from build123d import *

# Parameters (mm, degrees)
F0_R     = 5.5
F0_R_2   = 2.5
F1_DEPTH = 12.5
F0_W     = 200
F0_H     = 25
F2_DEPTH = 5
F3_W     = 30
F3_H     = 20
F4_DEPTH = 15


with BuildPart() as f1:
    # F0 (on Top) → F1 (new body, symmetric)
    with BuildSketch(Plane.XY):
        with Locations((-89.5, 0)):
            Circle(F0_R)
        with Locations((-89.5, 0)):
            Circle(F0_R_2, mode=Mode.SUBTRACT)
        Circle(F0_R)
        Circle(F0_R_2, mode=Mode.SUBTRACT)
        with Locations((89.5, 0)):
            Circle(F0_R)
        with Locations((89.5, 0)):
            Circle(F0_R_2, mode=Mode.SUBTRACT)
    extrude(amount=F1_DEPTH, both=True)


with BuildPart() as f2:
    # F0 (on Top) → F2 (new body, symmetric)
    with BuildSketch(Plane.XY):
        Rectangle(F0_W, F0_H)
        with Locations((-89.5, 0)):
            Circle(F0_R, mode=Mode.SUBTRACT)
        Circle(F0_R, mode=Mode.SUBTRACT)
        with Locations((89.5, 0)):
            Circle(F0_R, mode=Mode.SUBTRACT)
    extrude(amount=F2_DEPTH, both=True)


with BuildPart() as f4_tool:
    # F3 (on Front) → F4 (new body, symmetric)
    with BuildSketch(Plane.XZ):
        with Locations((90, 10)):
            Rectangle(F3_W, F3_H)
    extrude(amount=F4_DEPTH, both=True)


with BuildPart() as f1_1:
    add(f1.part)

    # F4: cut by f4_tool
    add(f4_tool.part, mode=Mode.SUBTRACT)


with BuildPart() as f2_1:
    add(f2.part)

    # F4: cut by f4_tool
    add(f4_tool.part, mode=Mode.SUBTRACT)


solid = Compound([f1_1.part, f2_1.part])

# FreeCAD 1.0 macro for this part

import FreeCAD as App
import Part
import Sketcher
from FreeCAD import Vector

doc = App.newDocument("Part")
body = doc.addObject("PartDesign::Body", "Body")
body.AllowCompound = True

# Sketch on XY plane
sketch1 = body.newObject("Sketcher::SketchObject", "Sketch")
sketch1.AttachmentSupport = (doc.getObject("XY_Plane"), [""])
sketch1.MapMode = "FlatFace"
sketch1.addGeometry([
    Part.Circle(Vector(-89.5, 0, 0), Vector(0, 0, 1), 5.5),  # 0
    Part.Circle(Vector(-89.5, 0, 0), Vector(0, 0, 1), 2.5),  # 1
    Part.Circle(Vector(0, 0, 0), Vector(0, 0, 1), 5.5),  # 2
    Part.Circle(Vector(0, 0, 0), Vector(0, 0, 1), 2.5),  # 3
    Part.Circle(Vector(89.5, 0, 0), Vector(0, 0, 1), 5.5),  # 4
    Part.Circle(Vector(89.5, 0, 0), Vector(0, 0, 1), 2.5),  # 5
], False)
sketch1.addConstraint([
    Sketcher.Constraint("Coincident", 2, 3, -1, 1),
    Sketcher.Constraint("Coincident", 3, 3, -1, 1),
    Sketcher.Constraint("Coincident", 1, 3, 0, 3),
    Sketcher.Constraint("Coincident", 5, 3, 4, 3),
    Sketcher.Constraint("Equal", 0, 2),
    Sketcher.Constraint("Equal", 1, 3),
    Sketcher.Constraint("Equal", 2, 4),
    Sketcher.Constraint("Equal", 3, 5),
    Sketcher.Constraint("Symmetric", 0, 3, 4, 3, -1, 1),
    Sketcher.Constraint("PointOnObject", 0, 3, -1),
    Sketcher.Constraint("Diameter", 0, 11.0),
    Sketcher.Constraint("Diameter", 1, 5.0),
    Sketcher.Constraint("DistanceX", 0, 3, 4, 3, 179.0),
])
pad1 = body.newObject("PartDesign::Pad", "Pad")
pad1.Profile = sketch1
pad1.Length = 25
pad1.Midplane = True
body2 = doc.addObject("PartDesign::Body", "Body001")

# Sketch on XY plane
sketch2 = body2.newObject("Sketcher::SketchObject", "Sketch001")
sketch2.AttachmentSupport = (doc.getObject("XY_Plane001"), [""])
sketch2.MapMode = "FlatFace"
sketch2.addGeometry([
    Part.LineSegment(Vector(-100, 12, 0), Vector(-100, -12, 0)),  # 0
    Part.LineSegment(Vector(-100, -12, 0), Vector(100, -12, 0)),  # 1
    Part.LineSegment(Vector(100, -12, 0), Vector(100, 12, 0)),  # 2
    Part.LineSegment(Vector(100, 12, 0), Vector(-100, 12, 0)),  # 3
    Part.Circle(Vector(-90, 0, 0), Vector(0, 0, 1), 6),  # 4
    Part.Circle(Vector(0, 0, 0), Vector(0, 0, 1), 6),  # 5
    Part.Circle(Vector(90, 0, 0), Vector(0, 0, 1), 6),  # 6
], False)
sketch2.addConstraint([
    Sketcher.Constraint("Coincident", 0, 2, 1, 1),
    Sketcher.Constraint("Coincident", 1, 2, 2, 1),
    Sketcher.Constraint("Coincident", 2, 2, 3, 1),
    Sketcher.Constraint("Coincident", 3, 2, 0, 1),
    Sketcher.Constraint("Vertical", 0),
    Sketcher.Constraint("Horizontal", 1),
    Sketcher.Constraint("Vertical", 2),
    Sketcher.Constraint("Horizontal", 3),
    Sketcher.Constraint("Coincident", 5, 3, -1, 1),
    Sketcher.Constraint("Equal", 4, 5),
    Sketcher.Constraint("Equal", 5, 6),
    Sketcher.Constraint("Symmetric", 4, 3, 6, 3, -1, 1),
    Sketcher.Constraint("Symmetric", 0, 2, 2, 2, -1, 1),
    Sketcher.Constraint("PointOnObject", 4, 3, -1),
    Sketcher.Constraint("Diameter", 4, 11.0),
    Sketcher.Constraint("DistanceX", 1, 1, 1, 2, 200.0),
    Sketcher.Constraint("DistanceY", 0, 2, 0, 1, 25.0),
    Sketcher.Constraint("DistanceX", 4, 3, 6, 3, 179.0),
])
pad2 = body2.newObject("PartDesign::Pad", "Pad001")
pad2.Profile = sketch2
pad2.Length = 10
pad2.Midplane = True
body3 = doc.addObject("PartDesign::Body", "Body002")

# Sketch on XZ plane
sketch3 = body3.newObject("Sketcher::SketchObject", "Sketch002")
sketch3.AttachmentSupport = (doc.getObject("XZ_Plane002"), [""])
sketch3.MapMode = "FlatFace"
sketch3.addGeometry([
    Part.LineSegment(Vector(75, 20, 0), Vector(75, 0, 0)),
    Part.LineSegment(Vector(75, 0, 0), Vector(105, 0, 0)),
    Part.LineSegment(Vector(105, 0, 0), Vector(105, 20, 0)),
    Part.LineSegment(Vector(105, 20, 0), Vector(75, 20, 0)),
], False)
sketch3.addConstraint([
    Sketcher.Constraint("Coincident", 0, 2, 1, 1),
    Sketcher.Constraint("Coincident", 1, 2, 2, 1),
    Sketcher.Constraint("Coincident", 2, 2, 3, 1),
    Sketcher.Constraint("Coincident", 3, 2, 0, 1),
    Sketcher.Constraint("Vertical", 0),
    Sketcher.Constraint("Horizontal", 1),
    Sketcher.Constraint("Vertical", 2),
    Sketcher.Constraint("Horizontal", 3),
    Sketcher.Constraint("PointOnObject", 0, 2, -1),
    Sketcher.Constraint("DistanceX", 1, 1, 1, 2, 30.0),
    Sketcher.Constraint("DistanceY", 0, 2, 0, 1, 20.0),
    Sketcher.Constraint("DistanceX", -1, 1, 0, 2, 75.0),
])
pad3 = body3.newObject("PartDesign::Pad", "Pad002")
pad3.Profile = sketch3
pad3.Length = 30
pad3.Midplane = True
body.AllowCompound = True
doc.recompute()

body4 = doc.addObject("PartDesign::Body", "Body003")
body4.BaseFeature = body3
boolean = body.newObject("PartDesign::Boolean", "Boolean")
boolean.Type = "Cut"
boolean.addObjects([body4])
doc.recompute()

boolean2 = body2.newObject("PartDesign::Boolean", "Boolean001")
boolean2.Type = "Cut"
boolean2.addObjects([body3])

doc.recompute()
